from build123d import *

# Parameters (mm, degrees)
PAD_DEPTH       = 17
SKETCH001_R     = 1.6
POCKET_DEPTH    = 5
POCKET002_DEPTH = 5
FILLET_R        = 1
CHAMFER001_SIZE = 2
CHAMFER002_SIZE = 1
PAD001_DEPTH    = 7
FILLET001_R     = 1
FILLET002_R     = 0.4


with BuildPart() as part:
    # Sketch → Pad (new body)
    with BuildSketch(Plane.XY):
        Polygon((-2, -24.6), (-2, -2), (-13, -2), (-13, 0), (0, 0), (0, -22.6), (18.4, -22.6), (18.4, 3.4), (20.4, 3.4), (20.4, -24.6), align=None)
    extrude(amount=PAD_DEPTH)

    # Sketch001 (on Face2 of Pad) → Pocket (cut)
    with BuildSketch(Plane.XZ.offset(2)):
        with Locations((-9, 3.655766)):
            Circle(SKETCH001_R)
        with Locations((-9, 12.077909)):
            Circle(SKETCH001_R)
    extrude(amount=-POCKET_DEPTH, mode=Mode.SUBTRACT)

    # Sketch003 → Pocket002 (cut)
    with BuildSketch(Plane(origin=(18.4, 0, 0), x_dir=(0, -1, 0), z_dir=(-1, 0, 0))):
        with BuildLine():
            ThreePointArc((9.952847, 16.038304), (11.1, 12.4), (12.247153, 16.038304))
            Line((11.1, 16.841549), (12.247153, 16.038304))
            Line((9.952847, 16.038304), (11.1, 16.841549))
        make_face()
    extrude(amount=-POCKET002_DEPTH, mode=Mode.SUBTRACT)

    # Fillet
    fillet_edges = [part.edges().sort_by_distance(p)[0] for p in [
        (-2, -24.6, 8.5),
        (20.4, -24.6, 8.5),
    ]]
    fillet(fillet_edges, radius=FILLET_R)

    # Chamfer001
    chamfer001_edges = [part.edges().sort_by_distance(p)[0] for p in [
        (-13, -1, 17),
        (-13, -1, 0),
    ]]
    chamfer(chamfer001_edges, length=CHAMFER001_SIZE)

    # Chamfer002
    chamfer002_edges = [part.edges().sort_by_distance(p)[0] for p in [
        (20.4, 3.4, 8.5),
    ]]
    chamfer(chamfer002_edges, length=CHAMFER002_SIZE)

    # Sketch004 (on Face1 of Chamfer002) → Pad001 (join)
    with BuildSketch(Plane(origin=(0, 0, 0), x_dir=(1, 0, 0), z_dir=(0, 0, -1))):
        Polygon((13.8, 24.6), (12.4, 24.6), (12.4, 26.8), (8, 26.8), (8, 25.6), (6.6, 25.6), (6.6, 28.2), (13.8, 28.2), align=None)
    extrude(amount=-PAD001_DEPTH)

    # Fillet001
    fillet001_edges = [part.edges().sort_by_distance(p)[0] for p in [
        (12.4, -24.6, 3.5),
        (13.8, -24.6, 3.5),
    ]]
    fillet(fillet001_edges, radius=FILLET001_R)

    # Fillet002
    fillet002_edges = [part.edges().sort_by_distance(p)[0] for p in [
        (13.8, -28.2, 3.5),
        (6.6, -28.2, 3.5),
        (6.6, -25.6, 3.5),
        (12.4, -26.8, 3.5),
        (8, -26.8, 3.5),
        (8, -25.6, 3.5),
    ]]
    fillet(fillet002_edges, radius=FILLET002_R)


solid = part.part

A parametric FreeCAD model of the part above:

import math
import FreeCAD as App
import Part
import Sketcher
from FreeCAD import Vector
Q = App.Units.Quantity


def edges_at(feature, points):
    """Names of the edges that pass closest to the given points."""
    edges = feature.Shape.Edges
    near = lambda p: min(range(len(edges)), key=lambda i: edges[i].distToShape(Part.Vertex(*p))[0])
    return sorted({f"Edge{near(p) + 1}" for p in points})


def add_polygon(sketch, points):
    """Adds a closed chain of lines whose ends are joined by coincident constraints."""
    first, n = sketch.GeometryCount, len(points)
    for a, b in zip(points, points[1:] + points[:1]):
        sketch.addGeometry(Part.LineSegment(App.Vector(*a, 0), App.Vector(*b, 0)), False)
    for i in range(n):
        sketch.addConstraint(Sketcher.Constraint("Coincident", first + i, 2, first + (i + 1) % n, 1))

doc = App.newDocument("Part")
body = doc.addObject("PartDesign::Body", "Body")

# Sketch on XY plane
sketch1 = body.newObject("Sketcher::SketchObject", "Sketch")
sketch1.AttachmentSupport = (doc.getObject("XY_Plane"), [""])
sketch1.MapMode = "FlatFace"
add_polygon(sketch1, [(-2, -2), (-2, -24.6), (20.4, -24.6), (20.4, 3.4), (18.4, 3.4), (18.4, -22.6), (0, -22.6), (0, 0), (-13, 0), (-13, -2)])  # lines 0-9
sketch1.addConstraint(Sketcher.Constraint("Vertical", 0))
sketch1.addConstraint(Sketcher.Constraint("Horizontal", 1))
sketch1.addConstraint(Sketcher.Constraint("Vertical", 2))
sketch1.addConstraint(Sketcher.Constraint("Horizontal", 3))
sketch1.addConstraint(Sketcher.Constraint("Vertical", 4))
sketch1.addConstraint(Sketcher.Constraint("Horizontal", 5))
sketch1.addConstraint(Sketcher.Constraint("Vertical", 6))
sketch1.addConstraint(Sketcher.Constraint("Horizontal", 7))
sketch1.addConstraint(Sketcher.Constraint("Vertical", 8))
sketch1.addConstraint(Sketcher.Constraint("Horizontal", 9))
sketch1.addConstraint(Sketcher.Constraint("Coincident", 6, 2, -1, 1))
sketch1.addConstraint(Sketcher.Constraint("Equal", 0, 6))
sketch1.addConstraint(Sketcher.Constraint("Equal", 3, 8))
sketch1.addConstraint(Sketcher.Constraint("DistanceX", 3, 2, 3, 1, Q("2 mm")))
sketch1.addConstraint(Sketcher.Constraint("DistanceX", 7, 2, 7, 1, Q("13 mm")))
sketch1.addConstraint(Sketcher.Constraint("DistanceX", 9, 1, 9, 2, Q("11 mm")))
sketch1.addConstraint(Sketcher.Constraint("DistanceY", 2, 1, 2, 2, Q("28 mm")))
sketch1.addConstraint(Sketcher.Constraint("DistanceX", 1, 1, 1, 2, Q("22.4 mm")))
sketch1.addConstraint(Sketcher.Constraint("DistanceY", 0, 2, 0, 1, Q("22.6 mm")))
pad1 = body.newObject("PartDesign::Pad", "Pad")
pad1.Profile = sketch1
pad1.Length = 17

# Sketch on XZ plane
sketch2 = body.newObject("Sketcher::SketchObject", "Sketch001")
sketch2.AttachmentSupport = (doc.getObject("XZ_Plane"), [""])
sketch2.MapMode = "FlatFace"
sketch2.AttachmentOffset = App.Placement(Vector(0, 0, 2), App.Rotation())
sketch2.addGeometry(Part.Circle(Vector(-9, 3.655766, 0), Vector(0, 0, 1), 1.6), False)
sketch2.addGeometry(Part.Circle(Vector(-9, 12.077909, 0), Vector(0, 0, 1), 1.6), False)
sketch2.addConstraint(Sketcher.Constraint("Equal", 0, 1))
sketch2.addConstraint(Sketcher.Constraint("Vertical", 0, 3, 1, 3))
sketch2.addConstraint(Sketcher.Constraint("Diameter", 0, Q("3.2 mm")))
sketch2.addConstraint(Sketcher.Constraint("DistanceX", 0, 3, -1, 1, Q("9 mm")))
sketch2.addConstraint(Sketcher.Constraint("DistanceY", -1, 1, 1, 3, Q("12.077909 mm")))
sketch2.addConstraint(Sketcher.Constraint("DistanceY", -1, 1, 0, 3, Q("3.655766 mm")))
pocket1 = body.newObject("PartDesign::Pocket", "Pocket")
pocket1.Profile = sketch2
pocket1.Length = 5

# Sketch on YZ plane
sketch3 = body.newObject("Sketcher::SketchObject", "Sketch002")
sketch3.AttachmentSupport = (doc.getObject("YZ_Plane"), [""])
sketch3.MapMode = "FlatFace"
sketch3.AttachmentOffset = App.Placement(Vector(0, 0, 18.4), App.Rotation())
sketch3.addGeometry(Part.ArcOfCircle(Part.Circle(Vector(-11.1, 14.4, 0), Vector(0, 0, 1), 2), math.radians(125.000004), math.radians(414.999996)), False)
sketch3.addGeometry(Part.LineSegment(Vector(-12.247153, 16.038304, 0), Vector(-11.1, 16.841549, 0)), False)
sketch3.addGeometry(Part.LineSegment(Vector(-11.1, 16.841549, 0), Vector(-9.952847, 16.038304, 0)), False)
sketch3.addConstraint(Sketcher.Constraint("Tangent", 0, 1, 1, 1))
sketch3.addConstraint(Sketcher.Constraint("Coincident", 1, 2, 2, 1))
sketch3.addConstraint(Sketcher.Constraint("Tangent", 2, 2, 0, 2))
sketch3.addConstraint(Sketcher.Constraint("Horizontal", 0, 1, 2, 2))
sketch3.addConstraint(Sketcher.Constraint("Radius", 0, Q("2 mm")))
sketch3.addConstraint(Sketcher.Constraint("Angle", 1, Q("34.999994 deg")))
sketch3.addConstraint(Sketcher.Constraint("DistanceX", 0, 3, -1, 1, Q("11.1 mm")))
sketch3.addConstraint(Sketcher.Constraint("DistanceY", -1, 1, 0, 3, Q("14.4 mm")))
pocket2 = body.newObject("PartDesign::Pocket", "Pocket001")
pocket2.Profile = sketch3
pocket2.Length = 5
pocket2.Reversed = True
doc.recompute()

fillet = body.newObject("PartDesign::Fillet", "Fillet")
fillet.Base = (pocket2, edges_at(pocket2, [(-2, -24.6, 8.5), (20.4, -24.6, 8.5)]))
fillet.Radius = 1
doc.recompute()

chamfer = body.newObject("PartDesign::Chamfer", "Chamfer")
chamfer.Base = (fillet, edges_at(fillet, [(-13, -1, 17), (-13, -1, 0)]))
chamfer.Size = 2
doc.recompute()

chamfer2 = body.newObject("PartDesign::Chamfer", "Chamfer001")
chamfer2.Base = (chamfer, edges_at(chamfer, [(20.4, 3.4, 8.5)]))
chamfer2.Size = 1

# Sketch on XY plane
sketch4 = body.newObject("Sketcher::SketchObject", "Sketch003")
sketch4.AttachmentSupport = (doc.getObject("XY_Plane"), [""])
sketch4.MapMode = "FlatFace"
add_polygon(sketch4, [(12.4, -24.6), (13.8, -24.6), (13.8, -28.2), (6.6, -28.2), (6.6, -25.6), (8, -25.6), (8, -26.8), (12.4, -26.8)])  # lines 0-7
sketch4.addConstraint(Sketcher.Constraint("Horizontal", 0))
sketch4.addConstraint(Sketcher.Constraint("Vertical", 1))
sketch4.addConstraint(Sketcher.Constraint("Horizontal", 2))
sketch4.addConstraint(Sketcher.Constraint("Vertical", 3))
sketch4.addConstraint(Sketcher.Constraint("Horizontal", 4))
sketch4.addConstraint(Sketcher.Constraint("Vertical", 5))
sketch4.addConstraint(Sketcher.Constraint("Horizontal", 6))
sketch4.addConstraint(Sketcher.Constraint("Vertical", 7))
sketch4.addConstraint(Sketcher.Constraint("Equal", 0, 4))
sketch4.addConstraint(Sketcher.Constraint("DistanceX", 0, 1, 0, 2, Q("1.4 mm")))
sketch4.addConstraint(Sketcher.Constraint("DistanceX", 2, 2, 2, 1, Q("7.2 mm")))
sketch4.addConstraint(Sketcher.Constraint("DistanceY", 1, 2, 1, 1, Q("3.6 mm")))
sketch4.addConstraint(Sketcher.Constraint("DistanceY", 3, 1, 3, 2, Q("2.6 mm")))
sketch4.addConstraint(Sketcher.Constraint("DistanceY", 5, 2, 5, 1, Q("1.2 mm")))
sketch4.addConstraint(Sketcher.Constraint("DistanceX", -1, 1, 4, 2, Q("8 mm")))
sketch4.addConstraint(Sketcher.Constraint("DistanceY", 0, 2, -1, 1, Q("24.6 mm")))
pad2 = body.newObject("PartDesign::Pad", "Pad001")
pad2.Profile = sketch4
pad2.Length = 7
doc.recompute()

fillet2 = body.newObject("PartDesign::Fillet", "Fillet001")
fillet2.Base = (pad2, edges_at(pad2, [(12.4, -24.6, 3.5), (13.8, -24.6, 3.5)]))
fillet2.Radius = 1
doc.recompute()

fillet3 = body.newObject("PartDesign::Fillet", "Fillet002")
fillet3.Base = (fillet2, edges_at(fillet2, [
    (13.8, -28.2, 3.5),
    (6.6, -28.2, 3.5),
    (6.6, -25.6, 3.5),
    (12.4, -26.8, 3.5),
    (8, -26.8, 3.5),
    (8, -25.6, 3.5),
]))
fillet3.Radius = 0.4

doc.recompute()
